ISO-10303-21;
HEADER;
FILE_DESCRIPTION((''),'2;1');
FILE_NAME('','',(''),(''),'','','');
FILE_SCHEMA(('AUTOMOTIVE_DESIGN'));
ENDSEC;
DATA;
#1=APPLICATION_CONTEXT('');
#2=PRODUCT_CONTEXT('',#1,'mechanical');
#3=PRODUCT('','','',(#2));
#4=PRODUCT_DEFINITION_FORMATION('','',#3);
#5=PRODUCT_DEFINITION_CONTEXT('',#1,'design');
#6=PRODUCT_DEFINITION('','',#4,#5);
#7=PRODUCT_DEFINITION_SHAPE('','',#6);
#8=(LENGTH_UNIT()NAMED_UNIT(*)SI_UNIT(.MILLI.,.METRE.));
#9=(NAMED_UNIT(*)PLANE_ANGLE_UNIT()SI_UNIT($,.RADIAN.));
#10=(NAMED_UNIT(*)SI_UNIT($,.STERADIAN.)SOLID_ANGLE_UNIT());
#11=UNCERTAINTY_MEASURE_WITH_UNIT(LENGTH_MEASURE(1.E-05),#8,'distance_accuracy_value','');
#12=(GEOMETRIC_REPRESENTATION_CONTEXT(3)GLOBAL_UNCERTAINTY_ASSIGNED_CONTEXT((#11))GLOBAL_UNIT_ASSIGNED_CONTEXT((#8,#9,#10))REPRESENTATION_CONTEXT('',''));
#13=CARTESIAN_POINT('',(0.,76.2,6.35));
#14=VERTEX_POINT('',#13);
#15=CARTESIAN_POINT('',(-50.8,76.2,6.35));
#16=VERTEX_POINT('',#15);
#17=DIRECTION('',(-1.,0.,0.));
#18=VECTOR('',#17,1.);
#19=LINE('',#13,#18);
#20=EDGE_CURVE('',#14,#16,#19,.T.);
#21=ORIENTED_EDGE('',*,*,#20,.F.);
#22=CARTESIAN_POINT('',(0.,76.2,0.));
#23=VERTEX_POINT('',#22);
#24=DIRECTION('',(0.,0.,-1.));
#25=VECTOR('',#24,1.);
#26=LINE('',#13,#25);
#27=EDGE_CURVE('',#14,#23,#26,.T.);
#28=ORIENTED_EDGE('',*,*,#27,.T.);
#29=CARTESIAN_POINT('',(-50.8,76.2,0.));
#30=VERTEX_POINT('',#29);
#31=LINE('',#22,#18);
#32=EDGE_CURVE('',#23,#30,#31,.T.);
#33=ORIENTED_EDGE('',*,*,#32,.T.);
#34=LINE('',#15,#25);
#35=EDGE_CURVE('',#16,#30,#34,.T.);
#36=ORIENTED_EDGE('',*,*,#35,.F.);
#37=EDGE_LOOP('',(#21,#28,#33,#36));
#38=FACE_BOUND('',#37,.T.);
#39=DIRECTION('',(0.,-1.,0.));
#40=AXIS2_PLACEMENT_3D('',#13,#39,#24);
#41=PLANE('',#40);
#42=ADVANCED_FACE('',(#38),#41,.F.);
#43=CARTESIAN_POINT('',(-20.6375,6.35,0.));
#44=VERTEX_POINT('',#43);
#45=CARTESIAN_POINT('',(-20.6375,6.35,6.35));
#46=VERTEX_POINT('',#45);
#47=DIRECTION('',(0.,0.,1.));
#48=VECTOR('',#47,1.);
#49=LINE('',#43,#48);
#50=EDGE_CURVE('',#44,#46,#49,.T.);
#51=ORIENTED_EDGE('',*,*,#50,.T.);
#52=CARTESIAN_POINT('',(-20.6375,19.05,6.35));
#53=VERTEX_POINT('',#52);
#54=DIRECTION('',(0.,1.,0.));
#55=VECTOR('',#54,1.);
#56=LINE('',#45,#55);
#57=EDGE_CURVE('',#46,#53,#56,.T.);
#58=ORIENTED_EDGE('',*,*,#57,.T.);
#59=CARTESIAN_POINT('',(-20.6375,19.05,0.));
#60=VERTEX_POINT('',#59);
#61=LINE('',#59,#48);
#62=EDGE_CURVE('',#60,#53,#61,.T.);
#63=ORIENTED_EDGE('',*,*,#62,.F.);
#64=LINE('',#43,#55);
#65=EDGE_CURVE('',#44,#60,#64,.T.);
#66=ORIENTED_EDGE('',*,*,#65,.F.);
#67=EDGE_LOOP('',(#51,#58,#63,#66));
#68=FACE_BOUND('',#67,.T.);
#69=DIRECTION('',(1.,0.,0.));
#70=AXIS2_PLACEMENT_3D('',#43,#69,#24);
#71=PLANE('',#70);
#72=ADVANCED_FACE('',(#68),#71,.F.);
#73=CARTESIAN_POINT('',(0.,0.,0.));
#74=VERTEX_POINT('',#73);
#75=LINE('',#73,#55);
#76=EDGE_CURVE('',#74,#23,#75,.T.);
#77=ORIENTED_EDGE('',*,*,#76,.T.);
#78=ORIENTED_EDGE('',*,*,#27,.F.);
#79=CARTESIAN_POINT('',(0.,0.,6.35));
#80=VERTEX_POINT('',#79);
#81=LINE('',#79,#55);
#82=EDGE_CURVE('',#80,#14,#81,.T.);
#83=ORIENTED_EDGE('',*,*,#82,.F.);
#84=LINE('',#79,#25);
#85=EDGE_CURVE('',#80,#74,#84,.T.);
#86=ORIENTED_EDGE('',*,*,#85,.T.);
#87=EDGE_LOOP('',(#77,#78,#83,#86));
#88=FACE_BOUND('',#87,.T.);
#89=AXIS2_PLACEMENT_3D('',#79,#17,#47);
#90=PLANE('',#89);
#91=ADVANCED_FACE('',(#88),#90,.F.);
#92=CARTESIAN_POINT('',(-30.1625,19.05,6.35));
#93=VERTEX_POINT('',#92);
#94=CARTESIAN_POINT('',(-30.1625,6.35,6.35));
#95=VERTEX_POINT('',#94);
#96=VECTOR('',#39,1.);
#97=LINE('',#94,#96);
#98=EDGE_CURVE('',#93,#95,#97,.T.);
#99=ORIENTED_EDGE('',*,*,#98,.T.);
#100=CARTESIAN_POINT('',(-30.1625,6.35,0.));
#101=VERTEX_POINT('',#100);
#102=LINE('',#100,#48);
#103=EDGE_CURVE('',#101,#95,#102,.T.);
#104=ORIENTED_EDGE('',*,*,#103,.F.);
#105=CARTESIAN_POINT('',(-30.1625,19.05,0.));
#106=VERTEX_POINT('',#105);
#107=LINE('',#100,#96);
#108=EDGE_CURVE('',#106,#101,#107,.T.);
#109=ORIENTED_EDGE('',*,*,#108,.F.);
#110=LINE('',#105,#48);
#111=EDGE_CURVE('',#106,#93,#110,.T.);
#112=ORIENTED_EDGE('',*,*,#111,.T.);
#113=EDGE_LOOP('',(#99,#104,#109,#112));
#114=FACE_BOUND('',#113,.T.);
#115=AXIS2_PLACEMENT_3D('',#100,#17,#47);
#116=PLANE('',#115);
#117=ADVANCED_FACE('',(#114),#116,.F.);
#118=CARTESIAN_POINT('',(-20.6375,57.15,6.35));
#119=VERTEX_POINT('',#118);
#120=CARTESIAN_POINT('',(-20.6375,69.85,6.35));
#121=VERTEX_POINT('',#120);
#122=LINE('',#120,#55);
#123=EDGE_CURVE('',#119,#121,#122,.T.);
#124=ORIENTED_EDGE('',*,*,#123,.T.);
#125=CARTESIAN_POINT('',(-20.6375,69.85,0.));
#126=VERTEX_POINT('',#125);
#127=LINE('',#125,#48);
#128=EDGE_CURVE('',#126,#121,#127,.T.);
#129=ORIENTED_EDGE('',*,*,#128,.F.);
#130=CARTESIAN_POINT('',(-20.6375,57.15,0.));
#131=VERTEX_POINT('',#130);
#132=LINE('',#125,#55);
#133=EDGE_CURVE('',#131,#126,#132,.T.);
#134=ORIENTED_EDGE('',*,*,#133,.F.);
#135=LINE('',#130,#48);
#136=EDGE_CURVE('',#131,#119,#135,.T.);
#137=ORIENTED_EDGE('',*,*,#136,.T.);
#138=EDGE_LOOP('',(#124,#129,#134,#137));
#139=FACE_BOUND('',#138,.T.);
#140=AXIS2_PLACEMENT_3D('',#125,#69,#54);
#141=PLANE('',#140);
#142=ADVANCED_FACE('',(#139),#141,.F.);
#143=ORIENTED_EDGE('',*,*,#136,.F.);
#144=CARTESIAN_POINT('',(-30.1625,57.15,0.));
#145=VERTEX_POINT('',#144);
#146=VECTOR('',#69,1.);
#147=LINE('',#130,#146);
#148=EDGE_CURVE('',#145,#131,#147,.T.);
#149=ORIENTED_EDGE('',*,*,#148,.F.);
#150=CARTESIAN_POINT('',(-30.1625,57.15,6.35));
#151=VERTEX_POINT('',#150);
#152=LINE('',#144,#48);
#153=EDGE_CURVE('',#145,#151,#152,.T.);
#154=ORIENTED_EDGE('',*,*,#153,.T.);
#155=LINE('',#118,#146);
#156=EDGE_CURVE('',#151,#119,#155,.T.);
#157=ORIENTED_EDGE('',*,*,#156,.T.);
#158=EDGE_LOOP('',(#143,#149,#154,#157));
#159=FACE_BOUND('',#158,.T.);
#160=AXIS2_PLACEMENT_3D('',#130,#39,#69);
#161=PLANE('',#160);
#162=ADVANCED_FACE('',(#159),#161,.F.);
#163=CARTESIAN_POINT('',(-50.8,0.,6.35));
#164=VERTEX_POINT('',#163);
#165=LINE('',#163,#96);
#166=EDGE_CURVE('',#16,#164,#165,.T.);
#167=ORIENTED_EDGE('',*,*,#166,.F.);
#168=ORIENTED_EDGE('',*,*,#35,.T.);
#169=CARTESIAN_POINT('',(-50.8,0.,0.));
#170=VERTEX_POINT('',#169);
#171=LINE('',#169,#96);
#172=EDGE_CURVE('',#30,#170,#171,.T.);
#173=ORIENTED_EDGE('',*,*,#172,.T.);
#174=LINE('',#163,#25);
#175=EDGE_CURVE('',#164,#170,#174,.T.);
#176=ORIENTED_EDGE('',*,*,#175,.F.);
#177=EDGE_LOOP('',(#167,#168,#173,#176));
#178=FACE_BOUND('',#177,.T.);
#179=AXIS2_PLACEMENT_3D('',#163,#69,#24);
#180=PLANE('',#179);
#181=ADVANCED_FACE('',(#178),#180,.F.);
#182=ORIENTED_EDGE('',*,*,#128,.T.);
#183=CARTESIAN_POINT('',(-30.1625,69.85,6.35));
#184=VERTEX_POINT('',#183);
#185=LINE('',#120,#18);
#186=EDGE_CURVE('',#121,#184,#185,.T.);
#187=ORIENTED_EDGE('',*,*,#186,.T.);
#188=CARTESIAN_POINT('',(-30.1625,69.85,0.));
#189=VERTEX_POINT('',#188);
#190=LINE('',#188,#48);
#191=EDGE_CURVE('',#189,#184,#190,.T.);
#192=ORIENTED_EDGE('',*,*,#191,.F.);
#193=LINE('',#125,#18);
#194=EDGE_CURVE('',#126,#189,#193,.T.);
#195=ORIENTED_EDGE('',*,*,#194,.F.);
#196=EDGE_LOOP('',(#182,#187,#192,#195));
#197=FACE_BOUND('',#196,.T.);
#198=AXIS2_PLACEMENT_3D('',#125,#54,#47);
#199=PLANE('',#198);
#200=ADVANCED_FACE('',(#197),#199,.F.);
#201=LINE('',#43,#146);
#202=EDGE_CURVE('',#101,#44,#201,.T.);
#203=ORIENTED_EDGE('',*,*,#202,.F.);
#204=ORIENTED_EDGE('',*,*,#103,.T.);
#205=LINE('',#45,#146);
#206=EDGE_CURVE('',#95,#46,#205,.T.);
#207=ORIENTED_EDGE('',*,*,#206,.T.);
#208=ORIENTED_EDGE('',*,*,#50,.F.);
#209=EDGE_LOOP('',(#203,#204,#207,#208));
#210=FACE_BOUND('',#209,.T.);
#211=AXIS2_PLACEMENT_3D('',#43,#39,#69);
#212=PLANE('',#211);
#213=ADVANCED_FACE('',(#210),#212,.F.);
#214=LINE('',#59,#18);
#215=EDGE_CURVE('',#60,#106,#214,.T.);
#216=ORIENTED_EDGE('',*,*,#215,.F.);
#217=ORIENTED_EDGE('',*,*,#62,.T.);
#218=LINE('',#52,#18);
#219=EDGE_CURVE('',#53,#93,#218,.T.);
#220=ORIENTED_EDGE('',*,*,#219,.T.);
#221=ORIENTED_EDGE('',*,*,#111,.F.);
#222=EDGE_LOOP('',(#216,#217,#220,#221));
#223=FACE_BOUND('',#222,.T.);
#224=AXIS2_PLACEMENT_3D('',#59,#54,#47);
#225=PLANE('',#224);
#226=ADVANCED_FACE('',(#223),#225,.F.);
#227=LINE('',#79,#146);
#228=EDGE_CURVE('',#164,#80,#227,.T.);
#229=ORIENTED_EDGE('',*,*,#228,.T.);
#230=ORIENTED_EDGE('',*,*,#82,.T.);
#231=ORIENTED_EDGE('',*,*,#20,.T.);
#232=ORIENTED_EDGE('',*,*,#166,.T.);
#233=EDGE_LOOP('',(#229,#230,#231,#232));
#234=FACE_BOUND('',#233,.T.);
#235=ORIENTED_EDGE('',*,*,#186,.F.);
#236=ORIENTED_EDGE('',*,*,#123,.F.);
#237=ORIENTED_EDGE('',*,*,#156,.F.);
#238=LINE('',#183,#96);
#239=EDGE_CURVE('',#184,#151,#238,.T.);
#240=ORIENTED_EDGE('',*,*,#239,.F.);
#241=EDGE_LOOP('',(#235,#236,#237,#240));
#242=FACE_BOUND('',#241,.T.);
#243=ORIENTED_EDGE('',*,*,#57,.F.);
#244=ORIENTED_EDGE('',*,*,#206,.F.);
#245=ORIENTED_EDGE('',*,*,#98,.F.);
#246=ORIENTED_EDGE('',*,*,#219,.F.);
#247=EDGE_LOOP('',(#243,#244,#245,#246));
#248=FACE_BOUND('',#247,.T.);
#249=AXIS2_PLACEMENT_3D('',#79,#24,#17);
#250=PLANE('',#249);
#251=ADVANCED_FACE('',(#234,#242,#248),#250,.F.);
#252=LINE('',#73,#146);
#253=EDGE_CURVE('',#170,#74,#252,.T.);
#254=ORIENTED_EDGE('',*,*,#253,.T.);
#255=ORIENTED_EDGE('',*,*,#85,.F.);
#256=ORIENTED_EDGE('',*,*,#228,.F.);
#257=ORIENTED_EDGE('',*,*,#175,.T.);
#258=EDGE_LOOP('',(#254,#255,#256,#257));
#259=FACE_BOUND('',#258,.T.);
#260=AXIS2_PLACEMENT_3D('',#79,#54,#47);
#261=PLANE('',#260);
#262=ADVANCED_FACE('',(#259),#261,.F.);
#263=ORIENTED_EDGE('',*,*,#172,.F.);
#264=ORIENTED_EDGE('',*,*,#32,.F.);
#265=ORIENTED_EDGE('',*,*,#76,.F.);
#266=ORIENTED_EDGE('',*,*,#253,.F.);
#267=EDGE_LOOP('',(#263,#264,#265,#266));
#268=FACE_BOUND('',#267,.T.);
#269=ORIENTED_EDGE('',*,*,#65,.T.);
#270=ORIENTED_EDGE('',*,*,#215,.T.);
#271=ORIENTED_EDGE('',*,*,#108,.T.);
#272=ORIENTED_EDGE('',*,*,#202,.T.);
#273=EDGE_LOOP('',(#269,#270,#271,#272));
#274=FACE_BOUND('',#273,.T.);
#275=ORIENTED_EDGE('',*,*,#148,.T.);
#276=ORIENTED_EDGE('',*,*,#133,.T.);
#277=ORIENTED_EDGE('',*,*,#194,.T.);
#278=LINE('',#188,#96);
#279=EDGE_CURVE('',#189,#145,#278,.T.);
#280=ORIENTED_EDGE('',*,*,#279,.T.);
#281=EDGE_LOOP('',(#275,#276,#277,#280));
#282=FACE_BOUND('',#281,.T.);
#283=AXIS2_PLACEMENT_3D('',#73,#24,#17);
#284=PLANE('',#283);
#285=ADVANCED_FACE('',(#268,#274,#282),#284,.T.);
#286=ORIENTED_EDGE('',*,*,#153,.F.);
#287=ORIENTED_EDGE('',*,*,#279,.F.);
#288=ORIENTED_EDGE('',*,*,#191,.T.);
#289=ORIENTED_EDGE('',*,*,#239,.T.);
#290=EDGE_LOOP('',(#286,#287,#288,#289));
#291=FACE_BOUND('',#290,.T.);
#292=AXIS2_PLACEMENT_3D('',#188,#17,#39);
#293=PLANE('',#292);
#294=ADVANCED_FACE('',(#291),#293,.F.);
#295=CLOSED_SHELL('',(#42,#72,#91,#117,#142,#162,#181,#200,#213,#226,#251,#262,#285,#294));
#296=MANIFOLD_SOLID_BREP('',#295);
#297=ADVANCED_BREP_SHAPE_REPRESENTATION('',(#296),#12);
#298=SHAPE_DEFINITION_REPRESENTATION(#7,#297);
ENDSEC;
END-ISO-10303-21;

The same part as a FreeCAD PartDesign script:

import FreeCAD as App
import Part
import Sketcher
Q = App.Units.Quantity


def add_polygon(sketch, points):
    """Adds a closed chain of lines whose ends are joined by coincident constraints."""
    first, n = sketch.GeometryCount, len(points)
    for a, b in zip(points, points[1:] + points[:1]):
        sketch.addGeometry(Part.LineSegment(App.Vector(*a, 0), App.Vector(*b, 0)), False)
    for i in range(n):
        sketch.addConstraint(Sketcher.Constraint("Coincident", first + i, 2, first + (i + 1) % n, 1))

doc = App.newDocument("Part")
body = doc.addObject("PartDesign::Body", "Body")

# Sketch on XY plane
sketch1 = body.newObject("Sketcher::SketchObject", "Sketch")
sketch1.AttachmentSupport = (doc.getObject("XY_Plane"), [""])
sketch1.MapMode = "FlatFace"
add_polygon(sketch1, [(-50.8, 0), (0, 0), (0, 76.2), (-50.8, 76.2)])  # lines 0-3
sketch1.addConstraint(Sketcher.Constraint("Horizontal", 0))
sketch1.addConstraint(Sketcher.Constraint("Vertical", 1))
sketch1.addConstraint(Sketcher.Constraint("Horizontal", 2))
sketch1.addConstraint(Sketcher.Constraint("Vertical", 3))
sketch1.addConstraint(Sketcher.Constraint("Coincident", 0, 2, -1, 1))
sketch1.addConstraint(Sketcher.Constraint("DistanceX", 0, 1, 0, 2, Q("2 in")))
sketch1.addConstraint(Sketcher.Constraint("DistanceY", 1, 1, 1, 2, Q("3 in")))
pad1 = body.newObject("PartDesign::Pad", "Pad")
pad1.Profile = sketch1
pad1.Length = Q("0.25 in")

# Sketch on XY plane
sketch2 = body.newObject("Sketcher::SketchObject", "Sketch001")
sketch2.AttachmentSupport = (doc.getObject("XY_Plane"), [""])
sketch2.MapMode = "FlatFace"
sketch2.AttachmentOffset = App.Placement(App.Vector(0, 0, 0.25 * 25.4), App.Rotation())
add_polygon(sketch2, [(-30.1625, 19.05), (-30.1625, 6.35), (-20.6375, 6.35), (-20.6375, 19.05)])  # lines 0-3
add_polygon(sketch2, [(-30.1625, 69.85), (-30.1625, 57.15), (-20.6375, 57.15), (-20.6375, 69.85)])  # lines 4-7
sketch2.addConstraint(Sketcher.Constraint("Vertical", 0))
sketch2.addConstraint(Sketcher.Constraint("Horizontal", 1))
sketch2.addConstraint(Sketcher.Constraint("Vertical", 2))
sketch2.addConstraint(Sketcher.Constraint("Horizontal", 3))
sketch2.addConstraint(Sketcher.Constraint("Vertical", 4))
sketch2.addConstraint(Sketcher.Constraint("Horizontal", 5))
sketch2.addConstraint(Sketcher.Constraint("Vertical", 6))
sketch2.addConstraint(Sketcher.Constraint("Horizontal", 7))
sketch2.addConstraint(Sketcher.Constraint("Vertical", 3, 2, 4, 2))
sketch2.addConstraint(Sketcher.Constraint("Vertical", 2, 2, 5, 2))
sketch2.addConstraint(Sketcher.Constraint("Equal", 2, 4))
sketch2.addConstraint(Sketcher.Constraint("DistanceY", 0, 2, 0, 1, Q("0.5 in")))
sketch2.addConstraint(Sketcher.Constraint("DistanceY", 0, 2, 4, 2, Q("2 in")))
sketch2.addConstraint(Sketcher.Constraint("DistanceX", 1, 1, 1, 2, Q("0.375 in")))
sketch2.addConstraint(Sketcher.Constraint("DistanceY", -1, 1, 0, 2, Q("0.25 in")))
sketch2.addConstraint(Sketcher.Constraint("DistanceX", 0, 2, -1, 1, Q("1.1875 in")))
pocket1 = body.newObject("PartDesign::Pocket", "Pocket")
pocket1.Profile = sketch2
pocket1.Type = "ThroughAll"

doc.recompute()
